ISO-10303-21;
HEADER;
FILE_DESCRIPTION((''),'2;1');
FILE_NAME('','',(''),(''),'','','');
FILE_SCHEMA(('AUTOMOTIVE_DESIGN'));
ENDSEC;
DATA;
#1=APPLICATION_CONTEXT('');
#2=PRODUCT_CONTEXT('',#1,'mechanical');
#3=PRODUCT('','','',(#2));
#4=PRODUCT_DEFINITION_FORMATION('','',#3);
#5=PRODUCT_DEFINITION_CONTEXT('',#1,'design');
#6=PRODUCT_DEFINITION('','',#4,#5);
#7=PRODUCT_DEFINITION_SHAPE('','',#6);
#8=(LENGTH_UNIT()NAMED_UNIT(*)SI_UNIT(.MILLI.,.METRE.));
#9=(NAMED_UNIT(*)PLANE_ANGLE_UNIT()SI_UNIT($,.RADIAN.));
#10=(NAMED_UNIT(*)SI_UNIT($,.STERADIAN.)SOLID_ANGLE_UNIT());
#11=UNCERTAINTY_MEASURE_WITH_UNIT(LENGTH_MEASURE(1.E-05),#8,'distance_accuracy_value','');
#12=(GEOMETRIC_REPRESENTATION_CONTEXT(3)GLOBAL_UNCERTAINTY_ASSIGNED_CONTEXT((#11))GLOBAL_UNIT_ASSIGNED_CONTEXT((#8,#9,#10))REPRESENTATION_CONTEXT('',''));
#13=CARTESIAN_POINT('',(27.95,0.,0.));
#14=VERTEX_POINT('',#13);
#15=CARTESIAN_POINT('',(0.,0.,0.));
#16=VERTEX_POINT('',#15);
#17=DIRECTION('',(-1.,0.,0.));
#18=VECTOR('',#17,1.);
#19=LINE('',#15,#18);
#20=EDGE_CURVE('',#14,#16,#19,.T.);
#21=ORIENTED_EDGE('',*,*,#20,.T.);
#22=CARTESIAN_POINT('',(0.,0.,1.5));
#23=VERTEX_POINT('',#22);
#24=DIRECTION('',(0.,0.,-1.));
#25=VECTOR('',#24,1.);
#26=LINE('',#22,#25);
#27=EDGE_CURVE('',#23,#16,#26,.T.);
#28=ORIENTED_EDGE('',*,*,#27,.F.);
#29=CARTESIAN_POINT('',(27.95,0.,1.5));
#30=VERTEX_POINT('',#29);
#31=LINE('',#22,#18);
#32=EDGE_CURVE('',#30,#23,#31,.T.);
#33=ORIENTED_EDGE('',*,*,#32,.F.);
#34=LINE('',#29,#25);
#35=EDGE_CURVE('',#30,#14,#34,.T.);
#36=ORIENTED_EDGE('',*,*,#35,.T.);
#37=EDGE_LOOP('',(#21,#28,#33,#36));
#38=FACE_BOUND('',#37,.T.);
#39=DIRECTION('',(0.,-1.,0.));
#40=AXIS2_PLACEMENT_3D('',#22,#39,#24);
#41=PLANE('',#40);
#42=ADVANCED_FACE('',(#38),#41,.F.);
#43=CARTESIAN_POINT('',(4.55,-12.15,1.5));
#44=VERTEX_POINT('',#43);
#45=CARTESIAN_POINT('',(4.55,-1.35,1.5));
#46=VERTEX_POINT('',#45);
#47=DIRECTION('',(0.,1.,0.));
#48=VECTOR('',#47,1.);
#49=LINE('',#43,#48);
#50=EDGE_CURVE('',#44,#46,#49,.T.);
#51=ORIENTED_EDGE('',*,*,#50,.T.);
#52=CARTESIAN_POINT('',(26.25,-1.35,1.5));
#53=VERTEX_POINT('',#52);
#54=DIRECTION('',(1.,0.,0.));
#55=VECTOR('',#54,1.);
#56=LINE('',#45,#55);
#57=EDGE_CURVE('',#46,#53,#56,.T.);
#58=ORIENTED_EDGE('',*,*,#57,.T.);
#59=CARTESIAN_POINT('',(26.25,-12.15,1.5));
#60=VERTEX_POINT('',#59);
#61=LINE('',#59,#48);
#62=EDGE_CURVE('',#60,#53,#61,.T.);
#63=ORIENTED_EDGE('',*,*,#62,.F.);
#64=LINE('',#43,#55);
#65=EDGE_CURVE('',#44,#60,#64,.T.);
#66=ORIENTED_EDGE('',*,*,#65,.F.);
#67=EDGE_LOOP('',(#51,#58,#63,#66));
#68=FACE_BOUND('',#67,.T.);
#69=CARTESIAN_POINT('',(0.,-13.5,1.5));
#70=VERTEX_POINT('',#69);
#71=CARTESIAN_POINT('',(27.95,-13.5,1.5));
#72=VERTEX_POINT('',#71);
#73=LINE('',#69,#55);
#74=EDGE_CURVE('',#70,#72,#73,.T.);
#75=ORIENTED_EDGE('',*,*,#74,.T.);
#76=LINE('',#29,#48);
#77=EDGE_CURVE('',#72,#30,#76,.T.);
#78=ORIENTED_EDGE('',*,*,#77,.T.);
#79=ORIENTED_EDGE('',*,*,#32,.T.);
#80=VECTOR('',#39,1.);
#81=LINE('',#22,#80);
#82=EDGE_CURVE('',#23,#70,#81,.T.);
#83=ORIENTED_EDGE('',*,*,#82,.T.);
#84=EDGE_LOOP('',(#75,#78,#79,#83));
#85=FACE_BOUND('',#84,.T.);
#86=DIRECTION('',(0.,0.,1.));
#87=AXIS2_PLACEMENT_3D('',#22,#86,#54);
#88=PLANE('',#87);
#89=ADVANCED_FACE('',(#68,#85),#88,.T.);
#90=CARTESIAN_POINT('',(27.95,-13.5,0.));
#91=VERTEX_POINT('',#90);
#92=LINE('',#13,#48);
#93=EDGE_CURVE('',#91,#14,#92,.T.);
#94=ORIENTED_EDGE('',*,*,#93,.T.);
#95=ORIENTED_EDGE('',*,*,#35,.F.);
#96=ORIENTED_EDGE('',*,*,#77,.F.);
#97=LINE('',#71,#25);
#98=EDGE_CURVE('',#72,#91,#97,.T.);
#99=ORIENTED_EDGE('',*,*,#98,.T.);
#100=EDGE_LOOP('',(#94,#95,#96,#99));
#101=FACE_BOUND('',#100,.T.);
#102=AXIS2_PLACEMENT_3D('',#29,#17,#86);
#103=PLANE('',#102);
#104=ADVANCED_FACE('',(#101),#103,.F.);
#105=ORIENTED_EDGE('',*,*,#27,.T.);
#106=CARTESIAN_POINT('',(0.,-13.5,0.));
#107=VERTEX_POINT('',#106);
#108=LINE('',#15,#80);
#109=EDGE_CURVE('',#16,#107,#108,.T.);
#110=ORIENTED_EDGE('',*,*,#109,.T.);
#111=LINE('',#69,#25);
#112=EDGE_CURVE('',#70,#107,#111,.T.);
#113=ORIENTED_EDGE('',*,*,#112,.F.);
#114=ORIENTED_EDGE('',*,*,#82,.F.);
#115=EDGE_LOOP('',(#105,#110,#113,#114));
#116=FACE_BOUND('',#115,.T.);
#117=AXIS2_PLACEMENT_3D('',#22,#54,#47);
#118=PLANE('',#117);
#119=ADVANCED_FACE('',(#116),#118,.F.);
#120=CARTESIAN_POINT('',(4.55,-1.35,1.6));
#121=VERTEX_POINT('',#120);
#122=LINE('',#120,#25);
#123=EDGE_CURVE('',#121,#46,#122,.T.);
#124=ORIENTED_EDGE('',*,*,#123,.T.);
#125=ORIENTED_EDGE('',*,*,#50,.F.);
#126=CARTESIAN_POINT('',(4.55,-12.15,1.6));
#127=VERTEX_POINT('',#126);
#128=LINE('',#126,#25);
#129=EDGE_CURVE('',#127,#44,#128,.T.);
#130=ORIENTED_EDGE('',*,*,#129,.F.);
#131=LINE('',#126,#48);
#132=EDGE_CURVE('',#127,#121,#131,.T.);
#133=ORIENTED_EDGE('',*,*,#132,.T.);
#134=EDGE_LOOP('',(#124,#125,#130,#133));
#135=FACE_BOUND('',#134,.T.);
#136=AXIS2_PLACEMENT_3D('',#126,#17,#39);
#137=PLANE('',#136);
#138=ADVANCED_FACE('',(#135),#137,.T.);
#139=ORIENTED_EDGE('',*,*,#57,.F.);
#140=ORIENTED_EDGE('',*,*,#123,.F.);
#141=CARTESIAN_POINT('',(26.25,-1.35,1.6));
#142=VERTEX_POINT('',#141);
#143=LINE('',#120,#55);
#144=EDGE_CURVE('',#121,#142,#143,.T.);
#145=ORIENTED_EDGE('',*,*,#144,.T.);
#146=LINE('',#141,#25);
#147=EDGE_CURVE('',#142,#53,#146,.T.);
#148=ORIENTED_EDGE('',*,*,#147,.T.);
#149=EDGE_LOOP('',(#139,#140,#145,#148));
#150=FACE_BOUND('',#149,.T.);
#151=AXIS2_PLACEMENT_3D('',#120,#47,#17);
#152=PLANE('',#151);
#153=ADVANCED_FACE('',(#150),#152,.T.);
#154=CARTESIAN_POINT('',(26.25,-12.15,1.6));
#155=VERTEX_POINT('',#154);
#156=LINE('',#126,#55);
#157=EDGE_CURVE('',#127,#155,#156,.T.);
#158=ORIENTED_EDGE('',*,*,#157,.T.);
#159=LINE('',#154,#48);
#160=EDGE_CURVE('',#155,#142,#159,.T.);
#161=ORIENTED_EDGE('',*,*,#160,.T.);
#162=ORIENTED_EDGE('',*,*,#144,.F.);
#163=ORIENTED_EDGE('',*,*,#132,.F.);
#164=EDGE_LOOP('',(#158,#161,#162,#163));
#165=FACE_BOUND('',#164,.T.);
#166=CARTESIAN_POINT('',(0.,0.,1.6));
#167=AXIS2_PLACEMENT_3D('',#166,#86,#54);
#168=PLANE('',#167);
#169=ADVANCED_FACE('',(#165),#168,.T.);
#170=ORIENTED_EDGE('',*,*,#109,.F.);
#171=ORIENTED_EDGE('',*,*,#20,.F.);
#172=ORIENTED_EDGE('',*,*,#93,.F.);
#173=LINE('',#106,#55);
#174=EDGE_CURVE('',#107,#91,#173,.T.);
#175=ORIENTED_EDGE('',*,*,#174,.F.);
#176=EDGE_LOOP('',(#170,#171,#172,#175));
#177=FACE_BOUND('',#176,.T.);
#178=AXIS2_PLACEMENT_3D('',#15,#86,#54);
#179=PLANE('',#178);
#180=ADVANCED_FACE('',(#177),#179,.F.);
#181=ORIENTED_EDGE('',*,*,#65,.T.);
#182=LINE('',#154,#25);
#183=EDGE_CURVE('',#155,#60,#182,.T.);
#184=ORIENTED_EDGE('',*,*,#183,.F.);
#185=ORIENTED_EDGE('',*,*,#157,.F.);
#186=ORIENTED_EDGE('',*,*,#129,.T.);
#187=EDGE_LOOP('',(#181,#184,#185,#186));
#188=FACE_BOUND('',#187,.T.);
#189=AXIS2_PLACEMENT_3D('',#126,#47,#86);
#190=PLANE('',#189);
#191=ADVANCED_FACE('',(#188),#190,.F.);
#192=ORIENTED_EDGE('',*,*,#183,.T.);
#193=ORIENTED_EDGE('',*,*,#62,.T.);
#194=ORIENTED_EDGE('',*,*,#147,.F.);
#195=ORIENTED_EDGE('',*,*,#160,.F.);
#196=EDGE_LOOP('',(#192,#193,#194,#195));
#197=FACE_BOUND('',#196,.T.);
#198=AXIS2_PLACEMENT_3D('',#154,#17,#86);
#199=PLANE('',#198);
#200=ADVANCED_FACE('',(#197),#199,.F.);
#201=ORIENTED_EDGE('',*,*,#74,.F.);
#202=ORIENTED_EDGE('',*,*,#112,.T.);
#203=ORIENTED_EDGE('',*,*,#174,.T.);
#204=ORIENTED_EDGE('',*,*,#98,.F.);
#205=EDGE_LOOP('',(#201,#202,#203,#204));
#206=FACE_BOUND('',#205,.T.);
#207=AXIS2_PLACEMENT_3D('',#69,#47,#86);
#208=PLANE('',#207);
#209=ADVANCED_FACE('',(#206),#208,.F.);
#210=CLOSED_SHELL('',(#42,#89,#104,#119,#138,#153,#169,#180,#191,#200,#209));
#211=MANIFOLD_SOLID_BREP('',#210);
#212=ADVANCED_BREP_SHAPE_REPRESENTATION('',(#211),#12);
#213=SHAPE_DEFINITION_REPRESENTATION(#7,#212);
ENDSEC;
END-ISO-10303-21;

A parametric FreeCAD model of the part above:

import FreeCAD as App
import Part
import Sketcher

V = App.Vector
Q = App.Units.Quantity


def add_polygon(sketch, points):
    """Adds a closed chain of lines whose ends are joined by coincident constraints."""
    first, n = sketch.GeometryCount, len(points)
    for a, b in zip(points, points[1:] + points[:1]):
        sketch.addGeometry(Part.LineSegment(App.Vector(*a, 0), App.Vector(*b, 0)), False)
    for i in range(n):
        sketch.addConstraint(Sketcher.Constraint("Coincident", first + i, 2, first + (i + 1) % n, 1))

doc = App.newDocument("Part")
body = doc.addObject("PartDesign::Body", "Body")

# Sketch on XY plane
sketch1 = body.newObject("Sketcher::SketchObject", "Sketch")
sketch1.AttachmentSupport = (doc.getObject("XY_Plane"), [""])
sketch1.MapMode = "FlatFace"
add_polygon(sketch1, [(0, 0), (0, -13.5), (27.95, -13.5), (27.95, 0)])  # lines 0-3
sketch1.addConstraint([
    Sketcher.Constraint("Vertical", 0),
    Sketcher.Constraint("Horizontal", 1),
    Sketcher.Constraint("Vertical", 2),
    Sketcher.Constraint("Horizontal", 3),
    Sketcher.Constraint("Coincident", 3, 2, -1, 1),
    Sketcher.Constraint("DistanceY", 0, 2, 0, 1, Q("13.5 mm")),
    Sketcher.Constraint("DistanceX", 1, 1, 1, 2, Q("27.95 mm")),
])
pad1 = body.newObject("PartDesign::Pad", "Pad")
pad1.Profile = sketch1
pad1.Length = 1.5

# Sketch on XY plane
sketch2 = body.newObject("Sketcher::SketchObject", "Sketch001")
sketch2.AttachmentSupport = (doc.getObject("XY_Plane"), [""])
sketch2.MapMode = "FlatFace"
sketch2.AttachmentOffset = App.Placement(V(0, 0, 1.5), App.Rotation())
add_polygon(sketch2, [(4.55, -1.35), (4.55, -12.15), (26.25, -12.15), (26.25, -1.35)])  # lines 0-3
sketch2.addConstraint([
    Sketcher.Constraint("Vertical", 0),
    Sketcher.Constraint("Horizontal", 1),
    Sketcher.Constraint("Vertical", 2),
    Sketcher.Constraint("Horizontal", 3),
    Sketcher.Constraint("DistanceX", 1, 1, 1, 2, Q("21.7 mm")),
    Sketcher.Constraint("DistanceY", 0, 2, 0, 1, Q("10.8 mm")),
    Sketcher.Constraint("DistanceX", -1, 1, 0, 2, Q("4.55 mm")),
    Sketcher.Constraint("DistanceY", 0, 2, -1, 1, Q("12.15 mm")),
])
pad2 = body.newObject("PartDesign::Pad", "Pad001")
pad2.Profile = sketch2
pad2.Length = 0.1

doc.recompute()
